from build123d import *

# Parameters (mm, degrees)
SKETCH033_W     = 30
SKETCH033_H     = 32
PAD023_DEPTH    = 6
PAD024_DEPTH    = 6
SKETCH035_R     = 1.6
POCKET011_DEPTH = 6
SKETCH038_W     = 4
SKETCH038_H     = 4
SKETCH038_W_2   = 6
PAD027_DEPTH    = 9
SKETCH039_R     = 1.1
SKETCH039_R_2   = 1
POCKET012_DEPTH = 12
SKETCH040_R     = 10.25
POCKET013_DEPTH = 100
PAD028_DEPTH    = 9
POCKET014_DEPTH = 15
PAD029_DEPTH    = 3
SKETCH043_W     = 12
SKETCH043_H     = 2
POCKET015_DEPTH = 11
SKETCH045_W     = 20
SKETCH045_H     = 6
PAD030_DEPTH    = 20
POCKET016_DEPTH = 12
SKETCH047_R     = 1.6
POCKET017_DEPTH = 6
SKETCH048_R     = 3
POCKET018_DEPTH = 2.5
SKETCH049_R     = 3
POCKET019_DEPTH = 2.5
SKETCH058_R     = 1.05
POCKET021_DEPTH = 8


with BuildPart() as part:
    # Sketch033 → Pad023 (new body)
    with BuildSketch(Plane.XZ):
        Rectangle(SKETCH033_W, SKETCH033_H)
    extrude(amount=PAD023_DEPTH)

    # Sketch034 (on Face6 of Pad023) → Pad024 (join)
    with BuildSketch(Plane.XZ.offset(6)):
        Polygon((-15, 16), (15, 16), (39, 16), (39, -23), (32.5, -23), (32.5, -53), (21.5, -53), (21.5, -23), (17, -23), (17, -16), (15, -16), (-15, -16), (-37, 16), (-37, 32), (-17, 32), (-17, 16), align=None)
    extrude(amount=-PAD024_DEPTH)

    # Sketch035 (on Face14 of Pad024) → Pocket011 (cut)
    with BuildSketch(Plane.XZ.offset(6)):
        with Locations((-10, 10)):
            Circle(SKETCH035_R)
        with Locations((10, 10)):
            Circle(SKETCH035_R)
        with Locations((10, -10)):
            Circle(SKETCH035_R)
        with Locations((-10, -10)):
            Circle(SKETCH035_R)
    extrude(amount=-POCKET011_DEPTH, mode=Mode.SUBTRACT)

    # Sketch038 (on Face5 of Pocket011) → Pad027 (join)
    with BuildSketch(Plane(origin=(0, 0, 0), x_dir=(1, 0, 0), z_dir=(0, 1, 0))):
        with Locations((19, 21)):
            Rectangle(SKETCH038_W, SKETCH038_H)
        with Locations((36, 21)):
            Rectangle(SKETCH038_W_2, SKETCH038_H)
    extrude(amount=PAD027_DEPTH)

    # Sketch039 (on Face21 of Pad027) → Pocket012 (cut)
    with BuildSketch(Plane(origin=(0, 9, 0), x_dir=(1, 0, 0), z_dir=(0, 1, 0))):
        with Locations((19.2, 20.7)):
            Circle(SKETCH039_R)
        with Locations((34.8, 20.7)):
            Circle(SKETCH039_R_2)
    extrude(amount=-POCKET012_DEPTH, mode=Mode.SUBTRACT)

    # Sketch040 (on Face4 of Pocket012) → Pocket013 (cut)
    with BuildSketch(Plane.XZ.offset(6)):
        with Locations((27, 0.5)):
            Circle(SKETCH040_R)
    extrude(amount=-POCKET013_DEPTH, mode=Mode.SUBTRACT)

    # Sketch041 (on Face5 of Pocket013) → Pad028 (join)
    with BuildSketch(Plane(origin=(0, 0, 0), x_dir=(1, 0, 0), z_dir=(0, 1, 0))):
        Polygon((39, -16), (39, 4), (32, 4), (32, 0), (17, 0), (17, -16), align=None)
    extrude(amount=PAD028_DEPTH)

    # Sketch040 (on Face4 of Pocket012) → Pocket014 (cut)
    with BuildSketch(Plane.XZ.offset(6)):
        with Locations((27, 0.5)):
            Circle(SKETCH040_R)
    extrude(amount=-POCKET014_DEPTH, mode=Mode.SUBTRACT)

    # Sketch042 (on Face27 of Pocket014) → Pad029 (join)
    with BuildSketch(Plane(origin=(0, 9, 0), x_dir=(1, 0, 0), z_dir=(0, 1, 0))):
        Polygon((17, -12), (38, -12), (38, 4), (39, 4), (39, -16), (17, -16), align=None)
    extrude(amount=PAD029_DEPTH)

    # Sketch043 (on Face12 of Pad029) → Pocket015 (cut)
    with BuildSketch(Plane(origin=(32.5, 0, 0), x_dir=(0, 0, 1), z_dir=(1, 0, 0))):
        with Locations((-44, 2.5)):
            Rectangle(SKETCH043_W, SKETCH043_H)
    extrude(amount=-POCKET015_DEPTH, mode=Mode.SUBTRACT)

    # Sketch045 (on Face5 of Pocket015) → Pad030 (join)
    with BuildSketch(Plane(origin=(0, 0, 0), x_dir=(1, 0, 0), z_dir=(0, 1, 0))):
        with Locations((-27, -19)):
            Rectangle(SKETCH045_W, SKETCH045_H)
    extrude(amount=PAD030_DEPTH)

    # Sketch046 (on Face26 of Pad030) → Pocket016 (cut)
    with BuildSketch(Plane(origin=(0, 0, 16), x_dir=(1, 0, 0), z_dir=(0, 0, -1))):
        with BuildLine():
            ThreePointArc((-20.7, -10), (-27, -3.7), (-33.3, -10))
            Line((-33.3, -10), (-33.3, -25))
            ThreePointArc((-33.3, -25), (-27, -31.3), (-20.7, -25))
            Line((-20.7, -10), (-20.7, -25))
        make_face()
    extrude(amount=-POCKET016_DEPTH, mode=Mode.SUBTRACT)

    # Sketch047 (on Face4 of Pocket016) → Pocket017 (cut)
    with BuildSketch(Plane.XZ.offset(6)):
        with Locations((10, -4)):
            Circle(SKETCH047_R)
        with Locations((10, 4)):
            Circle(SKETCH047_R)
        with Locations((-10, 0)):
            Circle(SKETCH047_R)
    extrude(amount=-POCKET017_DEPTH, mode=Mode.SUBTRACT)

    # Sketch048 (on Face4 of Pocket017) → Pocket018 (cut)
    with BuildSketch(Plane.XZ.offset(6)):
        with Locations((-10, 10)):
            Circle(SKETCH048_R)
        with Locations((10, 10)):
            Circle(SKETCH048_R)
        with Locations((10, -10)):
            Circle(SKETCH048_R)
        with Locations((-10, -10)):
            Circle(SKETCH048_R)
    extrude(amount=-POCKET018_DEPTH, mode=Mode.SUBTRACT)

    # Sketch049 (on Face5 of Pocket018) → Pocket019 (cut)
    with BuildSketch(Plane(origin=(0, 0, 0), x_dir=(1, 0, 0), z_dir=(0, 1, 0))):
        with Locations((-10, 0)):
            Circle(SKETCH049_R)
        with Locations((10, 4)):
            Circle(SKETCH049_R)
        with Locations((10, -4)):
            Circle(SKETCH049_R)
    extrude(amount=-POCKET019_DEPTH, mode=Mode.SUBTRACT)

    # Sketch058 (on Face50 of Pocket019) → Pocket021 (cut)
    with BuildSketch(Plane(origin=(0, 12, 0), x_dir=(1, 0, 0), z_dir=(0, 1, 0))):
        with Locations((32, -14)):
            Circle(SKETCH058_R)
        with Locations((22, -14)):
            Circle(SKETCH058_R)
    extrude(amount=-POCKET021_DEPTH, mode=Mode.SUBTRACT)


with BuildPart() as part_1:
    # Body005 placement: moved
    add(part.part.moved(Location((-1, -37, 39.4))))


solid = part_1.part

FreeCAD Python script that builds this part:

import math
import FreeCAD as App
import Part
import Sketcher
from FreeCAD import Vector
Q = App.Units.Quantity


def add_polygon(sketch, points):
    """Adds a closed chain of lines whose ends are joined by coincident constraints."""
    first, n = sketch.GeometryCount, len(points)
    for a, b in zip(points, points[1:] + points[:1]):
        sketch.addGeometry(Part.LineSegment(App.Vector(*a, 0), App.Vector(*b, 0)), False)
    for i in range(n):
        sketch.addConstraint(Sketcher.Constraint("Coincident", first + i, 2, first + (i + 1) % n, 1))

doc = App.newDocument("Part")
body = doc.addObject("PartDesign::Body", "Body")

# Sketch on XZ plane
sketch1 = doc.addObject("Sketcher::SketchObject", "Sketch")
body.addObject(sketch1)
sketch1.AttachmentSupport = (doc.XZ_Plane, [""])
sketch1.MapMode = "FlatFace"
add_polygon(sketch1, [(-15, 16), (-15, -16), (15, -16), (15, 16)])  # lines 0-3
sketch1.addConstraint([
    Sketcher.Constraint("Vertical", 0),
    Sketcher.Constraint("Horizontal", 1),
    Sketcher.Constraint("Vertical", 2),
    Sketcher.Constraint("Horizontal", 3),
    Sketcher.Constraint("Symmetric", 0, 2, 2, 2, -1, 1),
    Sketcher.Constraint("DistanceX", 1, 1, 1, 2, Q("30 mm")),
    Sketcher.Constraint("DistanceY", 0, 2, 0, 1, Q("32 mm")),
])
pad1 = doc.addObject("PartDesign::Pad", "Pad")
body.addObject(pad1)
pad1.Profile = sketch1
pad1.Length = 6

# Sketch on XZ plane
sketch2 = doc.addObject("Sketcher::SketchObject", "Sketch001")
body.addObject(sketch2)
sketch2.AttachmentSupport = (doc.XZ_Plane, [""])
sketch2.MapMode = "FlatFace"
sketch2.AttachmentOffset = App.Placement(Vector(0, 0, 6), App.Rotation())
add_polygon(sketch2, [(39, 16), (-17, 16), (-17, 32), (-37, 32), (-37, 16), (-15, -16), (17, -16), (17, -23), (21.5, -23), (21.5, -53), (32.5, -53), (32.5, -23), (39, -23)])  # lines 0-12
sketch2.addConstraint([
    Sketcher.Constraint("Horizontal", 0),
    Sketcher.Constraint("Vertical", 1),
    Sketcher.Constraint("Horizontal", 2),
    Sketcher.Constraint("Vertical", 3),
    Sketcher.Constraint("Horizontal", 5),
    Sketcher.Constraint("Vertical", 6),
    Sketcher.Constraint("Horizontal", 7),
    Sketcher.Constraint("Vertical", 8),
    Sketcher.Constraint("Horizontal", 9),
    Sketcher.Constraint("Vertical", 10),
    Sketcher.Constraint("Horizontal", 11),
    Sketcher.Constraint("Vertical", 12),
    Sketcher.Constraint("Symmetric", 0, 2, 5, 2, -1, 1),
    Sketcher.Constraint("Horizontal", 0, 2, 3, 2),
    Sketcher.Constraint("Horizontal", 7, 2, 10, 2),
    Sketcher.Constraint("DistanceX", 0, 2, 0, 1, Q("56 mm")),
    Sketcher.Constraint("DistanceX", 2, 2, 2, 1, Q("20 mm")),
    Sketcher.Constraint("DistanceX", 5, 1, 5, 2, Q("32 mm")),
    Sketcher.Constraint("DistanceX", 9, 1, 9, 2, Q("11 mm")),
    Sketcher.Constraint("DistanceY", 1, 1, 1, 2, Q("16 mm")),
    Sketcher.Constraint("DistanceY", 6, 2, 6, 1, Q("7 mm")),
    Sketcher.Constraint("DistanceY", 8, 2, 8, 1, Q("30 mm")),
    Sketcher.Constraint("DistanceY", 12, 1, 12, 2, Q("39 mm")),
    Sketcher.Constraint("DistanceX", 7, 1, 7, 2, Q("4.5 mm")),
    Sketcher.Constraint("DistanceX", 11, 1, 11, 2, Q("6.5 mm")),
])
pad2 = doc.addObject("PartDesign::Pad", "Pad001")
body.addObject(pad2)
pad2.Profile = sketch2
pad2.Length = 6
pad2.Reversed = True

# Sketch on XZ plane
sketch3 = doc.addObject("Sketcher::SketchObject", "Sketch002")
body.addObject(sketch3)
sketch3.AttachmentSupport = (doc.XZ_Plane, [""])
sketch3.MapMode = "FlatFace"
sketch3.AttachmentOffset = App.Placement(Vector(0, 0, 6), App.Rotation())
sketch3.addGeometry([
    Part.Circle(Vector(-10, 10, 0), Vector(0, 0, 1), 1.6),
    Part.Circle(Vector(10, 10, 0), Vector(0, 0, 1), 1.6),
    Part.Circle(Vector(10, -10, 0), Vector(0, 0, 1), 1.6),
    Part.Circle(Vector(-10, -10, 0), Vector(0, 0, 1), 1.6),
], False)
sketch3.addConstraint([
    Sketcher.Constraint("Equal", 0, 1),
    Sketcher.Constraint("Equal", 1, 2),
    Sketcher.Constraint("Equal", 2, 3),
    Sketcher.Constraint("Symmetric", 0, 3, 2, 3, -1, 1),
    Sketcher.Constraint("Symmetric", 1, 3, 3, 3, -1, 1),
    Sketcher.Constraint("Symmetric", 0, 3, 1, 3, -2),
    Sketcher.Constraint("Diameter", 0, Q("3.2 mm")),
    Sketcher.Constraint("DistanceX", 0, 3, -1, 1, Q("10 mm")),
    Sketcher.Constraint("DistanceY", -1, 1, 0, 3, Q("10 mm")),
])
pocket1 = doc.addObject("PartDesign::Pocket", "Pocket")
body.addObject(pocket1)
pocket1.Profile = sketch3
pocket1.Length = 6

# Sketch on XZ plane
sketch4 = doc.addObject("Sketcher::SketchObject", "Sketch003")
body.addObject(sketch4)
sketch4.AttachmentSupport = (doc.XZ_Plane, [""])
sketch4.MapMode = "FlatFace"
add_polygon(sketch4, [(17, -23), (17, -19), (21, -19), (21, -23)])  # lines 0-3
add_polygon(sketch4, [(33, -23), (33, -19), (39, -19), (39, -23)])  # lines 4-7
sketch4.addConstraint([
    Sketcher.Constraint("Vertical", 0),
    Sketcher.Constraint("Horizontal", 1),
    Sketcher.Constraint("Vertical", 2),
    Sketcher.Constraint("Horizontal", 3),
    Sketcher.Constraint("Vertical", 4),
    Sketcher.Constraint("Horizontal", 5),
    Sketcher.Constraint("Vertical", 6),
    Sketcher.Constraint("Horizontal", 7),
    Sketcher.Constraint("Horizontal", 1, 2, 4, 2),
    Sketcher.Constraint("Horizontal", 3, 2, 6, 2),
    Sketcher.Constraint("Equal", 3, 0),
    Sketcher.Constraint("DistanceX", 1, 1, 1, 2, Q("4 mm")),
    Sketcher.Constraint("DistanceX", 5, 1, 5, 2, Q("6 mm")),
    Sketcher.Constraint("DistanceX", -1, 1, 0, 2, Q("17 mm")),
    Sketcher.Constraint("DistanceY", 0, 2, -1, 1, Q("19 mm")),
    Sketcher.Constraint("DistanceX", -1, 1, 4, 2, Q("33 mm")),
])
pad3 = doc.addObject("PartDesign::Pad", "Pad002")
body.addObject(pad3)
pad3.Profile = sketch4
pad3.Length = 9
pad3.Reversed = True

# Sketch on XZ plane
sketch5 = doc.addObject("Sketcher::SketchObject", "Sketch004")
body.addObject(sketch5)
sketch5.AttachmentSupport = (doc.XZ_Plane, [""])
sketch5.MapMode = "FlatFace"
sketch5.AttachmentOffset = App.Placement(Vector(0, 0, -9), App.Rotation())
sketch5.addGeometry([
    Part.Circle(Vector(19.2, -20.7, 0), Vector(0, 0, 1), 1.1),
    Part.Circle(Vector(34.8, -20.7, 0), Vector(0, 0, 1), 1),
], False)
sketch5.addConstraint([
    Sketcher.Constraint("Horizontal", 0, 3, 1, 3),
    Sketcher.Constraint("Diameter", 1, Q("2 mm")),
    Sketcher.Constraint("Diameter", 0, Q("2.2 mm")),
    Sketcher.Constraint("DistanceX", -1, 1, 0, 3, Q("19.2 mm")),
    Sketcher.Constraint("DistanceY", 0, 3, -1, 1, Q("20.7 mm")),
    Sketcher.Constraint("DistanceX", -1, 1, 1, 3, Q("34.8 mm")),
])
pocket2 = doc.addObject("PartDesign::Pocket", "Pocket001")
body.addObject(pocket2)
pocket2.Profile = sketch5
pocket2.Length = 12
pocket2.Reversed = True

# Sketch on XZ plane
sketch6 = doc.addObject("Sketcher::SketchObject", "Sketch005")
body.addObject(sketch6)
sketch6.AttachmentSupport = (doc.XZ_Plane, [""])
sketch6.MapMode = "FlatFace"
sketch6.AttachmentOffset = App.Placement(Vector(0, 0, 6), App.Rotation())
sketch6.addGeometry(Part.Circle(Vector(27, 0, 0), Vector(0, 0, 1), 10), False)
sketch6.addConstraint([
    Sketcher.Constraint("Diameter", 0, Q("20.5 mm")),
    Sketcher.Constraint("DistanceX", -1, 1, 0, 3, Q("27 mm")),
    Sketcher.Constraint("DistanceY", -1, 1, 0, 3, Q("0.5 mm")),
])
pocket3 = doc.addObject("PartDesign::Pocket", "Pocket002")
body.addObject(pocket3)
pocket3.Profile = sketch6
pocket3.Length = 100

# Sketch on XZ plane
sketch7 = doc.addObject("Sketcher::SketchObject", "Sketch006")
body.addObject(sketch7)
sketch7.AttachmentSupport = (doc.XZ_Plane, [""])
sketch7.MapMode = "FlatFace"
add_polygon(sketch7, [(39, 16), (39, -4), (32, -4), (32, 0), (17, 0), (17, 16)])  # lines 0-5
sketch7.addConstraint([
    Sketcher.Constraint("Vertical", 0),
    Sketcher.Constraint("Horizontal", 1),
    Sketcher.Constraint("Vertical", 2),
    Sketcher.Constraint("Horizontal", 3),
    Sketcher.Constraint("Vertical", 4),
    Sketcher.Constraint("Horizontal", 5),
    Sketcher.Constraint("PointOnObject", 2, 2, -1),
    Sketcher.Constraint("DistanceX", 1, 2, 1, 1, Q("7 mm")),
    Sketcher.Constraint("DistanceX", 3, 2, 3, 1, Q("15 mm")),
    Sketcher.Constraint("DistanceY", 0, 2, 0, 1, Q("20 mm")),
    Sketcher.Constraint("DistanceY", 2, 1, 2, 2, Q("4 mm")),
    Sketcher.Constraint("DistanceX", -1, 1, 0, 2, Q("39 mm")),
])
pad4 = doc.addObject("PartDesign::Pad", "Pad003")
body.addObject(pad4)
pad4.Profile = sketch7
pad4.Length = 9
pad4.Reversed = True

# Sketch on XZ plane
sketch8 = doc.addObject("Sketcher::SketchObject", "Sketch007")
body.addObject(sketch8)
sketch8.AttachmentSupport = (doc.XZ_Plane, [""])
sketch8.MapMode = "FlatFace"
sketch8.AttachmentOffset = App.Placement(Vector(0, 0, 6), App.Rotation())
sketch8.addGeometry(Part.Circle(Vector(27, 0, 0), Vector(0, 0, 1), 10), False)
sketch8.addConstraint([
    Sketcher.Constraint("Diameter", 0, Q("20.5 mm")),
    Sketcher.Constraint("DistanceX", -1, 1, 0, 3, Q("27 mm")),
    Sketcher.Constraint("DistanceY", -1, 1, 0, 3, Q("0.5 mm")),
])
pocket4 = doc.addObject("PartDesign::Pocket", "Pocket003")
body.addObject(pocket4)
pocket4.Profile = sketch8
pocket4.Length = 15

# Sketch on XZ plane
sketch9 = doc.addObject("Sketcher::SketchObject", "Sketch008")
body.addObject(sketch9)
sketch9.AttachmentSupport = (doc.XZ_Plane, [""])
sketch9.MapMode = "FlatFace"
sketch9.AttachmentOffset = App.Placement(Vector(0, 0, -9), App.Rotation())
add_polygon(sketch9, [(38, 12), (17, 12), (17, 16), (39, 16), (39, -4), (38, -4)])  # lines 0-5
sketch9.addConstraint([
    Sketcher.Constraint("Horizontal", 0),
    Sketcher.Constraint("Vertical", 1),
    Sketcher.Constraint("Horizontal", 2),
    Sketcher.Constraint("Vertical", 3),
    Sketcher.Constraint("Horizontal", 4),
    Sketcher.Constraint("Vertical", 5),
    Sketcher.Constraint("DistanceX", 0, 2, 0, 1, Q("21 mm")),
    Sketcher.Constraint("DistanceX", 2, 1, 2, 2, Q("22 mm")),
    Sketcher.Constraint("DistanceY", 1, 1, 1, 2, Q("4 mm")),
    Sketcher.Constraint("DistanceY", 3, 2, 3, 1, Q("20 mm")),
    Sketcher.Constraint("DistanceX", -1, 1, 0, 2, Q("17 mm")),
    Sketcher.Constraint("DistanceY", -1, 1, 0, 2, Q("12 mm")),
])
pad5 = doc.addObject("PartDesign::Pad", "Pad004")
body.addObject(pad5)
pad5.Profile = sketch9
pad5.Length = 3
pad5.Reversed = True

# Sketch on YZ plane
sketch10 = doc.addObject("Sketcher::SketchObject", "Sketch009")
body.addObject(sketch10)
sketch10.AttachmentSupport = (doc.YZ_Plane, [""])
sketch10.MapMode = "FlatFace"
sketch10.AttachmentOffset = App.Placement(Vector(0, 0, 32.5), App.Rotation())
add_polygon(sketch10, [(-3.5, -50), (-1.5, -50), (-1.5, -38), (-3.5, -38)])  # lines 0-3
sketch10.addConstraint([
    Sketcher.Constraint("Horizontal", 0),
    Sketcher.Constraint("Vertical", 1),
    Sketcher.Constraint("Horizontal", 2),
    Sketcher.Constraint("Vertical", 3),
    Sketcher.Constraint("DistanceX", 0, 1, 0, 2, Q("2 mm")),
    Sketcher.Constraint("DistanceY", 1, 1, 1, 2, Q("12 mm")),
    Sketcher.Constraint("DistanceY", 0, 2, -1, 1, Q("50 mm")),
    Sketcher.Constraint("DistanceX", 0, 2, -1, 1, Q("1.5 mm")),
])
pocket5 = doc.addObject("PartDesign::Pocket", "Pocket004")
body.addObject(pocket5)
pocket5.Profile = sketch10
pocket5.Length = 11

# Sketch on XZ plane
sketch11 = doc.addObject("Sketcher::SketchObject", "Sketch010")
body.addObject(sketch11)
sketch11.AttachmentSupport = (doc.XZ_Plane, [""])
sketch11.MapMode = "FlatFace"
add_polygon(sketch11, [(-37, 16), (-37, 22), (-17, 22), (-17, 16)])  # lines 0-3
sketch11.addConstraint([
    Sketcher.Constraint("Vertical", 0),
    Sketcher.Constraint("Horizontal", 1),
    Sketcher.Constraint("Vertical", 2),
    Sketcher.Constraint("Horizontal", 3),
    Sketcher.Constraint("DistanceX", 1, 1, 1, 2, Q("20 mm")),
    Sketcher.Constraint("DistanceY", 0, 1, 0, 2, Q("6 mm")),
    Sketcher.Constraint("DistanceX", 0, 2, -1, 1, Q("37 mm")),
    Sketcher.Constraint("DistanceY", -1, 1, 0, 2, Q("22 mm")),
])
pad6 = doc.addObject("PartDesign::Pad", "Pad005")
body.addObject(pad6)
pad6.Profile = sketch11
pad6.Length = 20
pad6.Reversed = True

# Sketch on XY plane
sketch12 = doc.addObject("Sketcher::SketchObject", "Sketch011")
body.addObject(sketch12)
sketch12.AttachmentSupport = (doc.XY_Plane, [""])
sketch12.MapMode = "FlatFace"
sketch12.AttachmentOffset = App.Placement(Vector(0, 0, 16), App.Rotation())
sketch12.addGeometry([
    Part.ArcOfCircle(Part.Circle(Vector(-27, 10, 0), Vector(0, 0, 1), 6), math.radians(180), math.radians(360)),
    Part.LineSegment(Vector(-33, 10, 0), Vector(-33, 25, 0)),
    Part.ArcOfCircle(Part.Circle(Vector(-27, 25, 0), Vector(0, 0, 1), 6), math.radians(0), math.radians(180)),
    Part.LineSegment(Vector(-21, 25, 0), Vector(-21, 10, 0)),
], False)
sketch12.addConstraint([
    Sketcher.Constraint("Tangent", 0, 1, 1, 1),
    Sketcher.Constraint("Tangent", 1, 2, 2, 2),
    Sketcher.Constraint("Tangent", 2, 1, 3, 1),
    Sketcher.Constraint("Tangent", 3, 2, 0, 2),
    Sketcher.Constraint("Vertical", 1),
    Sketcher.Constraint("Vertical", 3),
    Sketcher.Constraint("Radius", 0, Q("6.3 mm")),
    Sketcher.Constraint("DistanceY", 1, 1, 1, 2, Q("15 mm")),
    Sketcher.Constraint("DistanceX", 0, 3, -1, 1, Q("27 mm")),
    Sketcher.Constraint("DistanceY", -1, 1, 0, 3, Q("10 mm")),
])
pocket6 = doc.addObject("PartDesign::Pocket", "Pocket005")
body.addObject(pocket6)
pocket6.Profile = sketch12
pocket6.Length = 12
pocket6.Reversed = True

# Sketch on XZ plane
sketch13 = doc.addObject("Sketcher::SketchObject", "Sketch012")
body.addObject(sketch13)
sketch13.AttachmentSupport = (doc.XZ_Plane, [""])
sketch13.MapMode = "FlatFace"
sketch13.AttachmentOffset = App.Placement(Vector(0, 0, 6), App.Rotation())
sketch13.addGeometry([
    Part.Circle(Vector(10, -4, 0), Vector(0, 0, 1), 1.6),
    Part.Circle(Vector(10, 4, 0), Vector(0, 0, 1), 1.6),
    Part.Circle(Vector(-10, 0, 0), Vector(0, 0, 1), 1.6),
], False)
sketch13.addConstraint([
    Sketcher.Constraint("Equal", 0, 1),
    Sketcher.Constraint("Equal", 1, 2),
    Sketcher.Constraint("Symmetric", 0, 3, 1, 3, -1),
    Sketcher.Constraint("PointOnObject", 2, 3, -1),
    Sketcher.Constraint("Diameter", 0, Q("3.2 mm")),
    Sketcher.Constraint("DistanceX", -1, 1, 0, 3, Q("10 mm")),
    Sketcher.Constraint("DistanceY", 0, 3, -1, 1, Q("4 mm")),
    Sketcher.Constraint("DistanceX", 2, 3, -1, 1, Q("10 mm")),
])
pocket7 = doc.addObject("PartDesign::Pocket", "Pocket006")
body.addObject(pocket7)
pocket7.Profile = sketch13
pocket7.Length = 6

# Sketch on XZ plane
sketch14 = doc.addObject("Sketcher::SketchObject", "Sketch013")
body.addObject(sketch14)
sketch14.AttachmentSupport = (doc.XZ_Plane, [""])
sketch14.MapMode = "FlatFace"
sketch14.AttachmentOffset = App.Placement(Vector(0, 0, 6), App.Rotation())
sketch14.addGeometry([
    Part.Circle(Vector(-10, 10, 0), Vector(0, 0, 1), 3),
    Part.Circle(Vector(10, 10, 0), Vector(0, 0, 1), 3),
    Part.Circle(Vector(10, -10, 0), Vector(0, 0, 1), 3),
    Part.Circle(Vector(-10, -10, 0), Vector(0, 0, 1), 3),
], False)
sketch14.addConstraint([
    Sketcher.Constraint("Equal", 0, 1),
    Sketcher.Constraint("Equal", 1, 2),
    Sketcher.Constraint("Equal", 2, 3),
    Sketcher.Constraint("Symmetric", 0, 3, 2, 3, -1, 1),
    Sketcher.Constraint("Symmetric", 1, 3, 3, 3, -1, 1),
    Sketcher.Constraint("Symmetric", 0, 3, 1, 3, -2),
    Sketcher.Constraint("Diameter", 0, Q("6 mm")),
    Sketcher.Constraint("DistanceX", 0, 3, -1, 1, Q("10 mm")),
    Sketcher.Constraint("DistanceY", -1, 1, 0, 3, Q("10 mm")),
])
pocket8 = doc.addObject("PartDesign::Pocket", "Pocket007")
body.addObject(pocket8)
pocket8.Profile = sketch14
pocket8.Length = 2.5

# Sketch on XZ plane
sketch15 = doc.addObject("Sketcher::SketchObject", "Sketch014")
body.addObject(sketch15)
sketch15.AttachmentSupport = (doc.XZ_Plane, [""])
sketch15.MapMode = "FlatFace"
sketch15.addGeometry([
    Part.Circle(Vector(-10, 0, 0), Vector(0, 0, 1), 3),
    Part.Circle(Vector(10, -4, 0), Vector(0, 0, 1), 3),
    Part.Circle(Vector(10, 4, 0), Vector(0, 0, 1), 3),
], False)
sketch15.addConstraint([
    Sketcher.Constraint("Equal", 0, 1),
    Sketcher.Constraint("Equal", 1, 2),
    Sketcher.Constraint("Symmetric", 1, 3, 2, 3, -1),
    Sketcher.Constraint("PointOnObject", 0, 3, -1),
    Sketcher.Constraint("Diameter", 0, Q("6 mm")),
    Sketcher.Constraint("DistanceX", 0, 3, -1, 1, Q("10 mm")),
    Sketcher.Constraint("DistanceX", -1, 1, 1, 3, Q("10 mm")),
    Sketcher.Constraint("DistanceY", 1, 3, -1, 1, Q("4 mm")),
])
pocket9 = doc.addObject("PartDesign::Pocket", "Pocket008")
body.addObject(pocket9)
pocket9.Profile = sketch15
pocket9.Length = 2.5
pocket9.Reversed = True

# Sketch on XZ plane
sketch16 = doc.addObject("Sketcher::SketchObject", "Sketch015")
body.addObject(sketch16)
sketch16.AttachmentSupport = (doc.XZ_Plane, [""])
sketch16.MapMode = "FlatFace"
sketch16.AttachmentOffset = App.Placement(Vector(0, 0, -12), App.Rotation())
sketch16.addGeometry([
    Part.Circle(Vector(32, 14, 0), Vector(0, 0, 1), 1.1),
    Part.Circle(Vector(22, 14, 0), Vector(0, 0, 1), 1.1),
], False)
sketch16.addConstraint([
    Sketcher.Constraint("Equal", 0, 1),
    Sketcher.Constraint("Horizontal", 0, 3, 1, 3),
    Sketcher.Constraint("Diameter", 0, Q("2.1 mm")),
    Sketcher.Constraint("DistanceX", -1, 1, 0, 3, Q("32 mm")),
    Sketcher.Constraint("DistanceY", -1, 1, 0, 3, Q("14 mm")),
    Sketcher.Constraint("DistanceX", -1, 1, 1, 3, Q("22 mm")),
])
pocket10 = doc.addObject("PartDesign::Pocket", "Pocket009")
body.addObject(pocket10)
pocket10.Profile = sketch16
pocket10.Length = 8
pocket10.Reversed = True
body2 = doc.addObject("PartDesign::Body", "Body001")
doc.recompute()

body.Placement = App.Placement(Vector(-1, -37, 39.4), App.Rotation(Vector(0, 0, 1), 0))
boolean = doc.addObject("PartDesign::Boolean", "Boolean")
body2.addObject(boolean)
boolean.Type = "Fuse"
boolean.addObjects([body])

doc.recompute()
